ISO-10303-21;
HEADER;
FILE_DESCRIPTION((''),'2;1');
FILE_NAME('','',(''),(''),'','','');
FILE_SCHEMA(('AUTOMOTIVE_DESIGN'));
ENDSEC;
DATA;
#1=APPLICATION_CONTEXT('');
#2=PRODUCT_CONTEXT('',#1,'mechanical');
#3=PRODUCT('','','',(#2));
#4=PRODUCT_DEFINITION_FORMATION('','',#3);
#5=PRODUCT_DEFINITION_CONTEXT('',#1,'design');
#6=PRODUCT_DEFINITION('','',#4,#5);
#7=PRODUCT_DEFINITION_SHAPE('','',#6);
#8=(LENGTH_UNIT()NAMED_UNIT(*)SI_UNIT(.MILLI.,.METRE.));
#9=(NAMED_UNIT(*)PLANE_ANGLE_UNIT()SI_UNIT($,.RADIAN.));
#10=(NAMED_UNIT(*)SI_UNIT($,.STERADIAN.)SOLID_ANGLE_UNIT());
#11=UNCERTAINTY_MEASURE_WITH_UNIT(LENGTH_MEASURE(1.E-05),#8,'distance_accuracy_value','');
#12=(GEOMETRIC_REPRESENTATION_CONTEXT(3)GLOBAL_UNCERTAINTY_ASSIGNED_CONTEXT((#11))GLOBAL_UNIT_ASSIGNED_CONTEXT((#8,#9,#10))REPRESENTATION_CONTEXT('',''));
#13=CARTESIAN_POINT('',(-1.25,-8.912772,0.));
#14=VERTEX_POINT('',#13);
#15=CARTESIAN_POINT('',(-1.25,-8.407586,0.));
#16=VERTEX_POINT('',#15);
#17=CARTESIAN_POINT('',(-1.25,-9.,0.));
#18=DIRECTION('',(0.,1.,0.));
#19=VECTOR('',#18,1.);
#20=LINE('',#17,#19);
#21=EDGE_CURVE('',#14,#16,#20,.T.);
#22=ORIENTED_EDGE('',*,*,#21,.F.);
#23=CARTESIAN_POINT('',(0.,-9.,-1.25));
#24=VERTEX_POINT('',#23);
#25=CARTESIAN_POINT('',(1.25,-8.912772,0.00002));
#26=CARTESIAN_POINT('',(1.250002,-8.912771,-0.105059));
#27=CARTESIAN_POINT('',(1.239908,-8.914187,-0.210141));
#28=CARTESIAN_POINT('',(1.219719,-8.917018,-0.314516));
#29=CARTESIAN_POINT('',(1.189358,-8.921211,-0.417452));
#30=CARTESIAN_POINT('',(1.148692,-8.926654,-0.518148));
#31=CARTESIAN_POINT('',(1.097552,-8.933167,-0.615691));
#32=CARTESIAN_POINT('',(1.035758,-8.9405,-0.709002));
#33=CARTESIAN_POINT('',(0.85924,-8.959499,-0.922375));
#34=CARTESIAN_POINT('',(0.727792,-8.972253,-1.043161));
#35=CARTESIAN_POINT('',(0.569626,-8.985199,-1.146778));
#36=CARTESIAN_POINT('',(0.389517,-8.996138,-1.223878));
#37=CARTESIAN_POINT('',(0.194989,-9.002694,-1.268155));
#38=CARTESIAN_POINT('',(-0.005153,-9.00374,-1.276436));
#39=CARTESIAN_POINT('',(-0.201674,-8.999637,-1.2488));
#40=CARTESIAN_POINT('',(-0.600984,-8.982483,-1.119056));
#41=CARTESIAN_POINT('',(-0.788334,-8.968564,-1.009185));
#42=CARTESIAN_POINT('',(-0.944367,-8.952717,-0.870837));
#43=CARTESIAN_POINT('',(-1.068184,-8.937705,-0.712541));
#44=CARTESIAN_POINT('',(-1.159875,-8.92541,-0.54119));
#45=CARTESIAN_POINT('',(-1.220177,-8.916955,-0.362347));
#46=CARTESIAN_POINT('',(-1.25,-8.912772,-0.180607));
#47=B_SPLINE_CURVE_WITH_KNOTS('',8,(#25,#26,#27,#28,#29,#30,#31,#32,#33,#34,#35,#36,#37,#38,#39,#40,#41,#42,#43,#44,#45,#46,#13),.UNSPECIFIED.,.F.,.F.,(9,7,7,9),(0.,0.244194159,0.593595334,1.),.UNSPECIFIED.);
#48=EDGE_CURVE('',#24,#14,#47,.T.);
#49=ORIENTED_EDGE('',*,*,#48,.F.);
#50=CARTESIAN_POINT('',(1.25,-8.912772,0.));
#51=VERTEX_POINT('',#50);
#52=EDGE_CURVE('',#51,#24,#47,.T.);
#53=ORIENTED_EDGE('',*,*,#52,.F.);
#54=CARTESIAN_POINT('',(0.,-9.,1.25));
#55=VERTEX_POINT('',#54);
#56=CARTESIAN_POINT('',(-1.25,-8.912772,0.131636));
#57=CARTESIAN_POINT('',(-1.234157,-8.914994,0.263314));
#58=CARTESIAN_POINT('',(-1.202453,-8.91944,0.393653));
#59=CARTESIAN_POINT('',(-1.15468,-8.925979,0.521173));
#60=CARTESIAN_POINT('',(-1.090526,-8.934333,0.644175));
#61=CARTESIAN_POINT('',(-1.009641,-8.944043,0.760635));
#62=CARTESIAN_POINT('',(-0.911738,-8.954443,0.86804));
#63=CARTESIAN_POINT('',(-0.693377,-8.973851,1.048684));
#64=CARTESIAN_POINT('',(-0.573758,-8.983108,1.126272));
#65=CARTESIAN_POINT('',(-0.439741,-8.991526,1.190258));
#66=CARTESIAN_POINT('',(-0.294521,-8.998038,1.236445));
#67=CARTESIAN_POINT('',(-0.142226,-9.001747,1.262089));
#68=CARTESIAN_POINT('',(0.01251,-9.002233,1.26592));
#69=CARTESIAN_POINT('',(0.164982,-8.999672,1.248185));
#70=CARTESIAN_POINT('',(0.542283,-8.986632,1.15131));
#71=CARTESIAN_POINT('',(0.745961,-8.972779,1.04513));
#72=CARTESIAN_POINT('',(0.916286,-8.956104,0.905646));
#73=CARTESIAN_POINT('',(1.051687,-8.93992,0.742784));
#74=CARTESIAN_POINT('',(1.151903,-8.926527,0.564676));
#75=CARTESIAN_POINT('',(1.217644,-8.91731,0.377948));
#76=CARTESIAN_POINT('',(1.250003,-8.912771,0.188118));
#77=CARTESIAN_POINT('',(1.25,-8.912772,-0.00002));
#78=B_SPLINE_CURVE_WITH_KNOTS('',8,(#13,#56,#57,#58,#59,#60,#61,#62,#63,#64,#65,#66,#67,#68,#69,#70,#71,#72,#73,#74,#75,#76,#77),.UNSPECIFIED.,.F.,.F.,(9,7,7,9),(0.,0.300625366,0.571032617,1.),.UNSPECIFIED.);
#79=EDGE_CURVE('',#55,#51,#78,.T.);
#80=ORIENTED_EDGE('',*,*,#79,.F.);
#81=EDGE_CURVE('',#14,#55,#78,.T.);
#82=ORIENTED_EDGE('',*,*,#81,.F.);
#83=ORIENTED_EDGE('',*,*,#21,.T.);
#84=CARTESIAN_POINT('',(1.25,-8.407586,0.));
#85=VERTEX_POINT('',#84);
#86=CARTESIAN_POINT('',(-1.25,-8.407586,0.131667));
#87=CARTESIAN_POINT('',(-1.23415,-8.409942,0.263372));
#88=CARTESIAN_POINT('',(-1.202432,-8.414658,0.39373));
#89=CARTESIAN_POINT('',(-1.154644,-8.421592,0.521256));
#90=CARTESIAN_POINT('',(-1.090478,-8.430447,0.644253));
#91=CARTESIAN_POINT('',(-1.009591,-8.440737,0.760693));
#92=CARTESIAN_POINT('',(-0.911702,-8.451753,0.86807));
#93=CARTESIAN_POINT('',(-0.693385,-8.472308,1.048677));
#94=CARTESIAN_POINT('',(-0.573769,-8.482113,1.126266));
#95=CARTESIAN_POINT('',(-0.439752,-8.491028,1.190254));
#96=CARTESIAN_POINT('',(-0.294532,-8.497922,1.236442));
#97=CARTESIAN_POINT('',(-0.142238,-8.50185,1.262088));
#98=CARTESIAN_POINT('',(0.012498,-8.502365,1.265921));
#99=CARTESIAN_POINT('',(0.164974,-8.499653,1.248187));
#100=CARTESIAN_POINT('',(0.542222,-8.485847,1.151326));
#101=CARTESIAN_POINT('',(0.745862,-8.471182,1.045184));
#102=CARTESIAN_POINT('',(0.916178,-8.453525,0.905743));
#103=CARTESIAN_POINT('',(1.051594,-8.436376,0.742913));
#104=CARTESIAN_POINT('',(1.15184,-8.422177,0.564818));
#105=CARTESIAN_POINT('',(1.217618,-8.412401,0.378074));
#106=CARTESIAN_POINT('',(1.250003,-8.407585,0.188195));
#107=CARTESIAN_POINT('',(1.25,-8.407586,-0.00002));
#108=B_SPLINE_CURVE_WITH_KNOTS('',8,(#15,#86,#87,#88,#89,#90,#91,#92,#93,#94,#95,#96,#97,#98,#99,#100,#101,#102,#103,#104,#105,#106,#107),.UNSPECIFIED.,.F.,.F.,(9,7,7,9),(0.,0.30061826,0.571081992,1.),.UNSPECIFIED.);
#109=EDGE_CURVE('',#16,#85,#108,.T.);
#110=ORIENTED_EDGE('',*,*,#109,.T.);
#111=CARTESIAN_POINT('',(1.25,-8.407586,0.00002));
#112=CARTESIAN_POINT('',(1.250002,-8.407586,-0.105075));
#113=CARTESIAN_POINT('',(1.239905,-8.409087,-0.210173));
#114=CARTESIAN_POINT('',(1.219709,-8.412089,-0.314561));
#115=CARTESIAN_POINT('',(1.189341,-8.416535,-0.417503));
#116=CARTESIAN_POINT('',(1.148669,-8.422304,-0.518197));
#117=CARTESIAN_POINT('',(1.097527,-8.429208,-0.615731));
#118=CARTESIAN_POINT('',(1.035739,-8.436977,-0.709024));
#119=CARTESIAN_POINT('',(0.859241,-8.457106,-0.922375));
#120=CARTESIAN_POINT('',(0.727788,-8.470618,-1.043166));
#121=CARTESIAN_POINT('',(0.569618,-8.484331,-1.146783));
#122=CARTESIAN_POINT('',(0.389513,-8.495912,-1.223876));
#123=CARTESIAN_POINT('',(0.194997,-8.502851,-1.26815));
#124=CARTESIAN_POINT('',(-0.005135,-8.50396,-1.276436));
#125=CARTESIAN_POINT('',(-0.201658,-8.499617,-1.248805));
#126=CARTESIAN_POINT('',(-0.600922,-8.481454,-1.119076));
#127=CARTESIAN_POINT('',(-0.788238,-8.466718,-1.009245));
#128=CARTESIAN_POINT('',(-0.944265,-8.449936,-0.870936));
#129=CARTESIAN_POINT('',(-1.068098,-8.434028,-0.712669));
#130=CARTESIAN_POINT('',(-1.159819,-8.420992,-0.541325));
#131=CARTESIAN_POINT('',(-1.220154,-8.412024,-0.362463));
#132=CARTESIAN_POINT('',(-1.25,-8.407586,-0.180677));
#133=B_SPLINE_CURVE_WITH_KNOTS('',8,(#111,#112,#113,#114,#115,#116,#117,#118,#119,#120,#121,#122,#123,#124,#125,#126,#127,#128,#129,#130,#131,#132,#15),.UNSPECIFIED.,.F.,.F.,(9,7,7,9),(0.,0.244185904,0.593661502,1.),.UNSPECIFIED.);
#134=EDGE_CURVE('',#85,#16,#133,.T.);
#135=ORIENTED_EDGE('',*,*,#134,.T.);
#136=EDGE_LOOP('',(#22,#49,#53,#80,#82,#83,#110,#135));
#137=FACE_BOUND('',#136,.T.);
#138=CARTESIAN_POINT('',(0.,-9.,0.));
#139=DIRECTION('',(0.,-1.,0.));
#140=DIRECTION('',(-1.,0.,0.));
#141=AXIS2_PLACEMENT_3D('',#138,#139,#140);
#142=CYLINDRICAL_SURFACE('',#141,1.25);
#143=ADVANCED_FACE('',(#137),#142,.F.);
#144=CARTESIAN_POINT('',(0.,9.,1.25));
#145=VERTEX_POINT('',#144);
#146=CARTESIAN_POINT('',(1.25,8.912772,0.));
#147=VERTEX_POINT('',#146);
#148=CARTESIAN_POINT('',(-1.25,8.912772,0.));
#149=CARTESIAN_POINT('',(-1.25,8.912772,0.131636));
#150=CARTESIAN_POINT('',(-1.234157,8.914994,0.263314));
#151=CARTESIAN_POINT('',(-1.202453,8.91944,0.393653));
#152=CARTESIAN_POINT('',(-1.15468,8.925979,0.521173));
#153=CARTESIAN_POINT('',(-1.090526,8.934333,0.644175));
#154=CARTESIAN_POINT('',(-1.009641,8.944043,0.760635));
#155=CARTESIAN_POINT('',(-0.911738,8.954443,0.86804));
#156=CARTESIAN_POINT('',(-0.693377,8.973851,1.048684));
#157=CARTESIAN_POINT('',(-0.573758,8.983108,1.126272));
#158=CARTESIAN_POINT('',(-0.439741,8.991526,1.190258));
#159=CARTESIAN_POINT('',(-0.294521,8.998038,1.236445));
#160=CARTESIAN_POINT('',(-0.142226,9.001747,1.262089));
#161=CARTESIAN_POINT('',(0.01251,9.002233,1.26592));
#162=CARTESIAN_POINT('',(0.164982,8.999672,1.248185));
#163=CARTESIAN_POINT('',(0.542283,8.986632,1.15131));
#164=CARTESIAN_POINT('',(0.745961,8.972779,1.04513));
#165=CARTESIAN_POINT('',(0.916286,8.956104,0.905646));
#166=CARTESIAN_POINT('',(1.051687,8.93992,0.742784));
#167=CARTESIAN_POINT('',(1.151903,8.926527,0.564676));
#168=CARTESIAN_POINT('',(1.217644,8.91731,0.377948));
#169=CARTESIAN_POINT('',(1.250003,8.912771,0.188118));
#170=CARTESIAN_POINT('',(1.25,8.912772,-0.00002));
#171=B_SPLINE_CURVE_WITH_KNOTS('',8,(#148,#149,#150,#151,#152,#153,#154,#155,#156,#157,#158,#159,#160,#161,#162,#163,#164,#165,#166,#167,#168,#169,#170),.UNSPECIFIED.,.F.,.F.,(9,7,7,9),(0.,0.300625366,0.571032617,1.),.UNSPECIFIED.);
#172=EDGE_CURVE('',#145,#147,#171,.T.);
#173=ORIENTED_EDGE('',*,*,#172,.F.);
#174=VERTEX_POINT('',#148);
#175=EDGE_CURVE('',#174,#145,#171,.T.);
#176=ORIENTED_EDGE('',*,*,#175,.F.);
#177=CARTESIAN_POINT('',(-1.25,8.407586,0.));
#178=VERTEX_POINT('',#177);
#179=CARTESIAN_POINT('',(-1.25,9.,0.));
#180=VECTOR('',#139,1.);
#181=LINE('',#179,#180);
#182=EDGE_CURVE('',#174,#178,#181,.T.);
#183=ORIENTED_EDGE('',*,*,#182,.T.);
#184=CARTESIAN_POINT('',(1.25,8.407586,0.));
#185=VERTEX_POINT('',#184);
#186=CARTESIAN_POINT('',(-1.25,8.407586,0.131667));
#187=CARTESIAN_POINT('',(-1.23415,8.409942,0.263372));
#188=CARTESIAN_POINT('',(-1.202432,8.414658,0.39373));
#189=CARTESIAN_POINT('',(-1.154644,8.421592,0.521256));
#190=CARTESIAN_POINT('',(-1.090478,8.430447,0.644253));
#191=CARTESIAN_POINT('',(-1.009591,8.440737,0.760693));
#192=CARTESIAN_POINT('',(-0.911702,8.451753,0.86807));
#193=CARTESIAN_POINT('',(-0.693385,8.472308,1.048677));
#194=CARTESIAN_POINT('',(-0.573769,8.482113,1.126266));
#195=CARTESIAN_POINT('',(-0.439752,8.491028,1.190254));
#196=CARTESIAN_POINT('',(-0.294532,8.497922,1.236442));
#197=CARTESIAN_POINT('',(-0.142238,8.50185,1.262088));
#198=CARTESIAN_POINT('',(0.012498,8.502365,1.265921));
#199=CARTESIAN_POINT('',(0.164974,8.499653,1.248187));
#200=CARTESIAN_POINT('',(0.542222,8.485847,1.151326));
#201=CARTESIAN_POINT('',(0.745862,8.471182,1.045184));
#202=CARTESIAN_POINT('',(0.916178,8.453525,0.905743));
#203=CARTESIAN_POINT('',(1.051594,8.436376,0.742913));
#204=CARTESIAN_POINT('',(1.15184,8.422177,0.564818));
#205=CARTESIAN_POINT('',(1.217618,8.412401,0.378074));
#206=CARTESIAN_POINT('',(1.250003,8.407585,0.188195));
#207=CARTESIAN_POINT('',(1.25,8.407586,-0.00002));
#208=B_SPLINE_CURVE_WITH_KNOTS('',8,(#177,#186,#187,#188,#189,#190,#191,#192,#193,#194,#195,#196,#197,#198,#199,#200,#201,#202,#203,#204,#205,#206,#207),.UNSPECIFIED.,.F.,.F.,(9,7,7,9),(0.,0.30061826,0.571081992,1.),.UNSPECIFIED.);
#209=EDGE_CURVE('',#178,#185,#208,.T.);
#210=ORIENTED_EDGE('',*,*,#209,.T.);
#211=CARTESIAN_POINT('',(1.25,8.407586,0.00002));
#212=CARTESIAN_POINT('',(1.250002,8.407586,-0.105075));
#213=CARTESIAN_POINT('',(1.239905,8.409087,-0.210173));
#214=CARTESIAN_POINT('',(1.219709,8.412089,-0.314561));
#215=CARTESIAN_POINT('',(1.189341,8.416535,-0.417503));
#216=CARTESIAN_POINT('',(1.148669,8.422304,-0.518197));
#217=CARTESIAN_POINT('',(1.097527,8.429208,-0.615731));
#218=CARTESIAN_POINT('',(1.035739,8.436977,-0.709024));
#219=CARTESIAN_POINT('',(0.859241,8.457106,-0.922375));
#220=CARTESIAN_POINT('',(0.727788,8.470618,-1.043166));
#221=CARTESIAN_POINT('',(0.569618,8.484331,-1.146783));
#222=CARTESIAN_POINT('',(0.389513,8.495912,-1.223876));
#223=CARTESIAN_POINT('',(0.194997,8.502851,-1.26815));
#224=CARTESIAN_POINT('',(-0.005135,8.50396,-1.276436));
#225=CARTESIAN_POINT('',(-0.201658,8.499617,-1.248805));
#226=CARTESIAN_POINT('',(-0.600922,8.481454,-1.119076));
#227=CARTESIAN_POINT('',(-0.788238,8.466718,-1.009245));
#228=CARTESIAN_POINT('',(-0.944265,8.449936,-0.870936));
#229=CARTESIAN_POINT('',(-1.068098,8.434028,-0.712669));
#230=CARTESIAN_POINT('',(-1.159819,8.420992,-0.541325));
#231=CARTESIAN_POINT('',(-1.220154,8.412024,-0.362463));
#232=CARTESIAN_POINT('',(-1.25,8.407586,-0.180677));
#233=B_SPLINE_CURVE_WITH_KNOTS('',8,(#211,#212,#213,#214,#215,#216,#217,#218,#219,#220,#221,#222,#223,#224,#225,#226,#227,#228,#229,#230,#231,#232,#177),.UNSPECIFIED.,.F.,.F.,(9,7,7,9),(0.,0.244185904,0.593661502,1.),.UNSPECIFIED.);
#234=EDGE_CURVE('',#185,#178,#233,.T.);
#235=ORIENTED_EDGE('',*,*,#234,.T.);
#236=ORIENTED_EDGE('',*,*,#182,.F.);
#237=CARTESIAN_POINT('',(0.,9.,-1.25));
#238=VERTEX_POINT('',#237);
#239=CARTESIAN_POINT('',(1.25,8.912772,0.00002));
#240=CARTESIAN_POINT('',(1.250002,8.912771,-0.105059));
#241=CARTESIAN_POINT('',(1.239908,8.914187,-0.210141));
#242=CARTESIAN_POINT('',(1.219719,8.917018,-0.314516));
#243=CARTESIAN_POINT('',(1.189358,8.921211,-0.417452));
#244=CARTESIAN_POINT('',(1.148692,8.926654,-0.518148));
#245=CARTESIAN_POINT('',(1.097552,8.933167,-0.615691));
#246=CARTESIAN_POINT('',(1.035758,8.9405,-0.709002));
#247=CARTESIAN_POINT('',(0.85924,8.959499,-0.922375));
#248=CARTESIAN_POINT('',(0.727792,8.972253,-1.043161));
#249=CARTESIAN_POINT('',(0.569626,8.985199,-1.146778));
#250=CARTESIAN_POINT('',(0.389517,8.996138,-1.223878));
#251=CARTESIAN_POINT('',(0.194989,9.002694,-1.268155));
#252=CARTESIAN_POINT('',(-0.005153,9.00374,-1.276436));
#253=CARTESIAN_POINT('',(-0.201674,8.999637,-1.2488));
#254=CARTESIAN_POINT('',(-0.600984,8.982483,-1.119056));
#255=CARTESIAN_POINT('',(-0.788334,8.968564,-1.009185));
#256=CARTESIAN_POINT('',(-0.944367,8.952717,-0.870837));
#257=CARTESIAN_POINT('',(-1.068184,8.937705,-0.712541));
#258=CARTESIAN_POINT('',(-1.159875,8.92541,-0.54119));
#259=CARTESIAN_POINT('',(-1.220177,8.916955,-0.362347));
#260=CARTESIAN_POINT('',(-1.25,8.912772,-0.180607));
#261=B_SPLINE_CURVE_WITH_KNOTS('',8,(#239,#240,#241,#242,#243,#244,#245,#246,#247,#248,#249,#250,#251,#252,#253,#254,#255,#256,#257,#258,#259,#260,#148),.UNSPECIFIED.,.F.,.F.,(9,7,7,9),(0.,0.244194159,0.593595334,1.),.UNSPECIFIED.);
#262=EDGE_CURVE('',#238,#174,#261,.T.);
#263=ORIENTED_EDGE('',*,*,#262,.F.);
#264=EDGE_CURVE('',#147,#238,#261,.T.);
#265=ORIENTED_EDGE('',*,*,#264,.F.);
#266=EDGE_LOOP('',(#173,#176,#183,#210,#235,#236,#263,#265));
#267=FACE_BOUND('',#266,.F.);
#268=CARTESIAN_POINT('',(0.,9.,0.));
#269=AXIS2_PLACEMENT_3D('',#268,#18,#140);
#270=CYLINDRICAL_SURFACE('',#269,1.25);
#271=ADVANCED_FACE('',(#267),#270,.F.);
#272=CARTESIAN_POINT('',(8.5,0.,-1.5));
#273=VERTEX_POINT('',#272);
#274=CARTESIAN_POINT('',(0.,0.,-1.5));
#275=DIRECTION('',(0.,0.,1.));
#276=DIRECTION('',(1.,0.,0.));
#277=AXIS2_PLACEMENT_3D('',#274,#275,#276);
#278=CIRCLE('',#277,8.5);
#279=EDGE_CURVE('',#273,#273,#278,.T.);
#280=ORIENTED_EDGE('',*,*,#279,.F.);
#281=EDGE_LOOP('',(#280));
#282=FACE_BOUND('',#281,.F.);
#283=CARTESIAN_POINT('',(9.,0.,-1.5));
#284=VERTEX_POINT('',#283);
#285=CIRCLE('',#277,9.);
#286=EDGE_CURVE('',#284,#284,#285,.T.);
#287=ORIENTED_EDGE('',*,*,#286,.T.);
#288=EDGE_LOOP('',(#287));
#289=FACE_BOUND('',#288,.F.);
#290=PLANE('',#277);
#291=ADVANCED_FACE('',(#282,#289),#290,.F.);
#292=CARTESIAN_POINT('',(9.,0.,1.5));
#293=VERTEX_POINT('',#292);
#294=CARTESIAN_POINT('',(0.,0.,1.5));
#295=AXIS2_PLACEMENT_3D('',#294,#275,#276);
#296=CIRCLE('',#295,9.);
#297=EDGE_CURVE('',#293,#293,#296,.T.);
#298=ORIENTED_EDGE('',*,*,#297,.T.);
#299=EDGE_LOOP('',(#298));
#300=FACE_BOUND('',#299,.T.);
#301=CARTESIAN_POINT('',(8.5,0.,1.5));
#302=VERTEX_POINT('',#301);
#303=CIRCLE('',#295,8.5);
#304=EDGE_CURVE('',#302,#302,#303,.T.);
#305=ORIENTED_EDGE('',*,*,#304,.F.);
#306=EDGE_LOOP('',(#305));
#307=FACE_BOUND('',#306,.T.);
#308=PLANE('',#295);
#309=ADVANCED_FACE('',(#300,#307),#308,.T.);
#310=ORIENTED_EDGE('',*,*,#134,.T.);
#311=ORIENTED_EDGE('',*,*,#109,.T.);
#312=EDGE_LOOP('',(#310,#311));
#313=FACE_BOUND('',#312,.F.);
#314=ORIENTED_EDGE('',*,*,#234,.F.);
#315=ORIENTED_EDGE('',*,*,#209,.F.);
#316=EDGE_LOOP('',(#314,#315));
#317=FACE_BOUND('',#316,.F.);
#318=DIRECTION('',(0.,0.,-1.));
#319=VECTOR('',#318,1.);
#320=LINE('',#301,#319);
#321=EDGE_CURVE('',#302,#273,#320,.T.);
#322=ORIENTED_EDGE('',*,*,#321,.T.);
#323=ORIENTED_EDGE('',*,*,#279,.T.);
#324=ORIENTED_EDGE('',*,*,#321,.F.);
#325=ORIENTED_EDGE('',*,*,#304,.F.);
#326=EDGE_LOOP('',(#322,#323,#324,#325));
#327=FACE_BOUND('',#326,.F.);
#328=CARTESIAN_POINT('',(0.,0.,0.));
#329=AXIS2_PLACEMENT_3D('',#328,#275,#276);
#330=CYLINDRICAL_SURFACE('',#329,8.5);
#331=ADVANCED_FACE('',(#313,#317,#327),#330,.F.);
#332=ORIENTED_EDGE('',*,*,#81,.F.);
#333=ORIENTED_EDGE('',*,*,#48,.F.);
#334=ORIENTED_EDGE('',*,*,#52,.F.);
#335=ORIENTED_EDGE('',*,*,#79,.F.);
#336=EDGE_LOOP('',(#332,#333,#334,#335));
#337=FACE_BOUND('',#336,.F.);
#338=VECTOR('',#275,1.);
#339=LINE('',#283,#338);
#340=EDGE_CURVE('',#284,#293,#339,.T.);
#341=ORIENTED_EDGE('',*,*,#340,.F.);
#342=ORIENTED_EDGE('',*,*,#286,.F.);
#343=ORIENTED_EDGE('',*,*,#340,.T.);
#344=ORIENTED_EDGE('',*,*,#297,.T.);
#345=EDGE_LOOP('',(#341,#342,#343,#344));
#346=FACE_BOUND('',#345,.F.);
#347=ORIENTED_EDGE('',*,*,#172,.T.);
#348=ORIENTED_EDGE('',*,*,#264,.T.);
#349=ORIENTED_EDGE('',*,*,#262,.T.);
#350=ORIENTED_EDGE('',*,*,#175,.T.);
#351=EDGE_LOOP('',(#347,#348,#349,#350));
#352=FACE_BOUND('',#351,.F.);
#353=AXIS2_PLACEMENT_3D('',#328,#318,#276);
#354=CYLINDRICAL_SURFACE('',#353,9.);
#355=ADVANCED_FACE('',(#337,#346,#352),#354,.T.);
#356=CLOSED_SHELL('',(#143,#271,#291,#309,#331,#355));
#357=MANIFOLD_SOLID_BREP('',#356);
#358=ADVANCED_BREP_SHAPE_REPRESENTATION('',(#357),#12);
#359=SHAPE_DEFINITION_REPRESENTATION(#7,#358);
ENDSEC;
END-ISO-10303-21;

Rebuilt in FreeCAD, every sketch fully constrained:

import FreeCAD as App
import Part
import Sketcher
from FreeCAD import Vector

doc = App.newDocument("Part")
params = doc.addObject("Spreadsheet::Sheet", "Params")
for row, (alias, value) in enumerate([
    ("sketch1_diameter", "18 mm"),
    ("sketch1_diameter2", "17 mm"),
    ("pad1_length", "3 mm"),
    ("sketch2_diameter", "2.5 mm"),
], start=1):
    params.set(f"A{row}", alias)
    params.set(f"B{row}", "=" + value)
    params.setAlias(f"B{row}", alias)

body = doc.addObject("PartDesign::Body", "Body")

sketch1 = body.newObject("Sketcher::SketchObject", "Sketch")
sketch1.AttachmentSupport = (doc.getObject("XY_Plane"), [""])
sketch1.MapMode = "FlatFace"
sketch1.addGeometry(Part.Circle(Vector(0, 0, 0), Vector(0, 0, 1), 9), False)
sketch1.addGeometry(Part.Circle(Vector(0, 0, 0), Vector(0, 0, 1), 8.5), False)
sketch1.addConstraint(Sketcher.Constraint("Coincident", 0, 3, -1, 1))
sketch1.addConstraint(Sketcher.Constraint("Coincident", 1, 3, -1, 1))
sketch1.addConstraint(Sketcher.Constraint("Diameter", 0, 18.0))
sketch1.addConstraint(Sketcher.Constraint("Diameter", 1, 17.0))
sketch1.setExpression("Constraints[2]", "Params.sketch1_diameter")
sketch1.setExpression("Constraints[3]", "Params.sketch1_diameter2")
pad1 = body.newObject("PartDesign::Pad", "Pad")
pad1.Profile = sketch1
pad1.setExpression("Length", "Params.pad1_length")
pad1.Midplane = True

sketch2 = body.newObject("Sketcher::SketchObject", "Sketch001")
sketch2.AttachmentSupport = (doc.getObject("XZ_Plane"), [""])
sketch2.MapMode = "FlatFace"
sketch2.AttachmentOffset = App.Placement(Vector(0, 0, -9), App.Rotation())
sketch2.addGeometry(Part.Circle(Vector(0, 0, 0), Vector(0, 0, 1), 1.25), False)
sketch2.addConstraint(Sketcher.Constraint("Coincident", 0, 3, -1, 1))
sketch2.addConstraint(Sketcher.Constraint("Diameter", 0, 2.5))
sketch2.setExpression("Constraints[1]", "Params.sketch2_diameter")
pocket1 = body.newObject("PartDesign::Pocket", "Pocket")
pocket1.Profile = sketch2
pocket1.Type = "UpToFirst"
pocket1.Reversed = True
doc.recompute()

mirrored = body.newObject("PartDesign::Mirrored", "Mirrored")
mirrored.Originals = [pocket1]
mirrored.MirrorPlane = (doc.getObject("XZ_Plane"), [""])
body.Tip = mirrored

doc.recompute()
